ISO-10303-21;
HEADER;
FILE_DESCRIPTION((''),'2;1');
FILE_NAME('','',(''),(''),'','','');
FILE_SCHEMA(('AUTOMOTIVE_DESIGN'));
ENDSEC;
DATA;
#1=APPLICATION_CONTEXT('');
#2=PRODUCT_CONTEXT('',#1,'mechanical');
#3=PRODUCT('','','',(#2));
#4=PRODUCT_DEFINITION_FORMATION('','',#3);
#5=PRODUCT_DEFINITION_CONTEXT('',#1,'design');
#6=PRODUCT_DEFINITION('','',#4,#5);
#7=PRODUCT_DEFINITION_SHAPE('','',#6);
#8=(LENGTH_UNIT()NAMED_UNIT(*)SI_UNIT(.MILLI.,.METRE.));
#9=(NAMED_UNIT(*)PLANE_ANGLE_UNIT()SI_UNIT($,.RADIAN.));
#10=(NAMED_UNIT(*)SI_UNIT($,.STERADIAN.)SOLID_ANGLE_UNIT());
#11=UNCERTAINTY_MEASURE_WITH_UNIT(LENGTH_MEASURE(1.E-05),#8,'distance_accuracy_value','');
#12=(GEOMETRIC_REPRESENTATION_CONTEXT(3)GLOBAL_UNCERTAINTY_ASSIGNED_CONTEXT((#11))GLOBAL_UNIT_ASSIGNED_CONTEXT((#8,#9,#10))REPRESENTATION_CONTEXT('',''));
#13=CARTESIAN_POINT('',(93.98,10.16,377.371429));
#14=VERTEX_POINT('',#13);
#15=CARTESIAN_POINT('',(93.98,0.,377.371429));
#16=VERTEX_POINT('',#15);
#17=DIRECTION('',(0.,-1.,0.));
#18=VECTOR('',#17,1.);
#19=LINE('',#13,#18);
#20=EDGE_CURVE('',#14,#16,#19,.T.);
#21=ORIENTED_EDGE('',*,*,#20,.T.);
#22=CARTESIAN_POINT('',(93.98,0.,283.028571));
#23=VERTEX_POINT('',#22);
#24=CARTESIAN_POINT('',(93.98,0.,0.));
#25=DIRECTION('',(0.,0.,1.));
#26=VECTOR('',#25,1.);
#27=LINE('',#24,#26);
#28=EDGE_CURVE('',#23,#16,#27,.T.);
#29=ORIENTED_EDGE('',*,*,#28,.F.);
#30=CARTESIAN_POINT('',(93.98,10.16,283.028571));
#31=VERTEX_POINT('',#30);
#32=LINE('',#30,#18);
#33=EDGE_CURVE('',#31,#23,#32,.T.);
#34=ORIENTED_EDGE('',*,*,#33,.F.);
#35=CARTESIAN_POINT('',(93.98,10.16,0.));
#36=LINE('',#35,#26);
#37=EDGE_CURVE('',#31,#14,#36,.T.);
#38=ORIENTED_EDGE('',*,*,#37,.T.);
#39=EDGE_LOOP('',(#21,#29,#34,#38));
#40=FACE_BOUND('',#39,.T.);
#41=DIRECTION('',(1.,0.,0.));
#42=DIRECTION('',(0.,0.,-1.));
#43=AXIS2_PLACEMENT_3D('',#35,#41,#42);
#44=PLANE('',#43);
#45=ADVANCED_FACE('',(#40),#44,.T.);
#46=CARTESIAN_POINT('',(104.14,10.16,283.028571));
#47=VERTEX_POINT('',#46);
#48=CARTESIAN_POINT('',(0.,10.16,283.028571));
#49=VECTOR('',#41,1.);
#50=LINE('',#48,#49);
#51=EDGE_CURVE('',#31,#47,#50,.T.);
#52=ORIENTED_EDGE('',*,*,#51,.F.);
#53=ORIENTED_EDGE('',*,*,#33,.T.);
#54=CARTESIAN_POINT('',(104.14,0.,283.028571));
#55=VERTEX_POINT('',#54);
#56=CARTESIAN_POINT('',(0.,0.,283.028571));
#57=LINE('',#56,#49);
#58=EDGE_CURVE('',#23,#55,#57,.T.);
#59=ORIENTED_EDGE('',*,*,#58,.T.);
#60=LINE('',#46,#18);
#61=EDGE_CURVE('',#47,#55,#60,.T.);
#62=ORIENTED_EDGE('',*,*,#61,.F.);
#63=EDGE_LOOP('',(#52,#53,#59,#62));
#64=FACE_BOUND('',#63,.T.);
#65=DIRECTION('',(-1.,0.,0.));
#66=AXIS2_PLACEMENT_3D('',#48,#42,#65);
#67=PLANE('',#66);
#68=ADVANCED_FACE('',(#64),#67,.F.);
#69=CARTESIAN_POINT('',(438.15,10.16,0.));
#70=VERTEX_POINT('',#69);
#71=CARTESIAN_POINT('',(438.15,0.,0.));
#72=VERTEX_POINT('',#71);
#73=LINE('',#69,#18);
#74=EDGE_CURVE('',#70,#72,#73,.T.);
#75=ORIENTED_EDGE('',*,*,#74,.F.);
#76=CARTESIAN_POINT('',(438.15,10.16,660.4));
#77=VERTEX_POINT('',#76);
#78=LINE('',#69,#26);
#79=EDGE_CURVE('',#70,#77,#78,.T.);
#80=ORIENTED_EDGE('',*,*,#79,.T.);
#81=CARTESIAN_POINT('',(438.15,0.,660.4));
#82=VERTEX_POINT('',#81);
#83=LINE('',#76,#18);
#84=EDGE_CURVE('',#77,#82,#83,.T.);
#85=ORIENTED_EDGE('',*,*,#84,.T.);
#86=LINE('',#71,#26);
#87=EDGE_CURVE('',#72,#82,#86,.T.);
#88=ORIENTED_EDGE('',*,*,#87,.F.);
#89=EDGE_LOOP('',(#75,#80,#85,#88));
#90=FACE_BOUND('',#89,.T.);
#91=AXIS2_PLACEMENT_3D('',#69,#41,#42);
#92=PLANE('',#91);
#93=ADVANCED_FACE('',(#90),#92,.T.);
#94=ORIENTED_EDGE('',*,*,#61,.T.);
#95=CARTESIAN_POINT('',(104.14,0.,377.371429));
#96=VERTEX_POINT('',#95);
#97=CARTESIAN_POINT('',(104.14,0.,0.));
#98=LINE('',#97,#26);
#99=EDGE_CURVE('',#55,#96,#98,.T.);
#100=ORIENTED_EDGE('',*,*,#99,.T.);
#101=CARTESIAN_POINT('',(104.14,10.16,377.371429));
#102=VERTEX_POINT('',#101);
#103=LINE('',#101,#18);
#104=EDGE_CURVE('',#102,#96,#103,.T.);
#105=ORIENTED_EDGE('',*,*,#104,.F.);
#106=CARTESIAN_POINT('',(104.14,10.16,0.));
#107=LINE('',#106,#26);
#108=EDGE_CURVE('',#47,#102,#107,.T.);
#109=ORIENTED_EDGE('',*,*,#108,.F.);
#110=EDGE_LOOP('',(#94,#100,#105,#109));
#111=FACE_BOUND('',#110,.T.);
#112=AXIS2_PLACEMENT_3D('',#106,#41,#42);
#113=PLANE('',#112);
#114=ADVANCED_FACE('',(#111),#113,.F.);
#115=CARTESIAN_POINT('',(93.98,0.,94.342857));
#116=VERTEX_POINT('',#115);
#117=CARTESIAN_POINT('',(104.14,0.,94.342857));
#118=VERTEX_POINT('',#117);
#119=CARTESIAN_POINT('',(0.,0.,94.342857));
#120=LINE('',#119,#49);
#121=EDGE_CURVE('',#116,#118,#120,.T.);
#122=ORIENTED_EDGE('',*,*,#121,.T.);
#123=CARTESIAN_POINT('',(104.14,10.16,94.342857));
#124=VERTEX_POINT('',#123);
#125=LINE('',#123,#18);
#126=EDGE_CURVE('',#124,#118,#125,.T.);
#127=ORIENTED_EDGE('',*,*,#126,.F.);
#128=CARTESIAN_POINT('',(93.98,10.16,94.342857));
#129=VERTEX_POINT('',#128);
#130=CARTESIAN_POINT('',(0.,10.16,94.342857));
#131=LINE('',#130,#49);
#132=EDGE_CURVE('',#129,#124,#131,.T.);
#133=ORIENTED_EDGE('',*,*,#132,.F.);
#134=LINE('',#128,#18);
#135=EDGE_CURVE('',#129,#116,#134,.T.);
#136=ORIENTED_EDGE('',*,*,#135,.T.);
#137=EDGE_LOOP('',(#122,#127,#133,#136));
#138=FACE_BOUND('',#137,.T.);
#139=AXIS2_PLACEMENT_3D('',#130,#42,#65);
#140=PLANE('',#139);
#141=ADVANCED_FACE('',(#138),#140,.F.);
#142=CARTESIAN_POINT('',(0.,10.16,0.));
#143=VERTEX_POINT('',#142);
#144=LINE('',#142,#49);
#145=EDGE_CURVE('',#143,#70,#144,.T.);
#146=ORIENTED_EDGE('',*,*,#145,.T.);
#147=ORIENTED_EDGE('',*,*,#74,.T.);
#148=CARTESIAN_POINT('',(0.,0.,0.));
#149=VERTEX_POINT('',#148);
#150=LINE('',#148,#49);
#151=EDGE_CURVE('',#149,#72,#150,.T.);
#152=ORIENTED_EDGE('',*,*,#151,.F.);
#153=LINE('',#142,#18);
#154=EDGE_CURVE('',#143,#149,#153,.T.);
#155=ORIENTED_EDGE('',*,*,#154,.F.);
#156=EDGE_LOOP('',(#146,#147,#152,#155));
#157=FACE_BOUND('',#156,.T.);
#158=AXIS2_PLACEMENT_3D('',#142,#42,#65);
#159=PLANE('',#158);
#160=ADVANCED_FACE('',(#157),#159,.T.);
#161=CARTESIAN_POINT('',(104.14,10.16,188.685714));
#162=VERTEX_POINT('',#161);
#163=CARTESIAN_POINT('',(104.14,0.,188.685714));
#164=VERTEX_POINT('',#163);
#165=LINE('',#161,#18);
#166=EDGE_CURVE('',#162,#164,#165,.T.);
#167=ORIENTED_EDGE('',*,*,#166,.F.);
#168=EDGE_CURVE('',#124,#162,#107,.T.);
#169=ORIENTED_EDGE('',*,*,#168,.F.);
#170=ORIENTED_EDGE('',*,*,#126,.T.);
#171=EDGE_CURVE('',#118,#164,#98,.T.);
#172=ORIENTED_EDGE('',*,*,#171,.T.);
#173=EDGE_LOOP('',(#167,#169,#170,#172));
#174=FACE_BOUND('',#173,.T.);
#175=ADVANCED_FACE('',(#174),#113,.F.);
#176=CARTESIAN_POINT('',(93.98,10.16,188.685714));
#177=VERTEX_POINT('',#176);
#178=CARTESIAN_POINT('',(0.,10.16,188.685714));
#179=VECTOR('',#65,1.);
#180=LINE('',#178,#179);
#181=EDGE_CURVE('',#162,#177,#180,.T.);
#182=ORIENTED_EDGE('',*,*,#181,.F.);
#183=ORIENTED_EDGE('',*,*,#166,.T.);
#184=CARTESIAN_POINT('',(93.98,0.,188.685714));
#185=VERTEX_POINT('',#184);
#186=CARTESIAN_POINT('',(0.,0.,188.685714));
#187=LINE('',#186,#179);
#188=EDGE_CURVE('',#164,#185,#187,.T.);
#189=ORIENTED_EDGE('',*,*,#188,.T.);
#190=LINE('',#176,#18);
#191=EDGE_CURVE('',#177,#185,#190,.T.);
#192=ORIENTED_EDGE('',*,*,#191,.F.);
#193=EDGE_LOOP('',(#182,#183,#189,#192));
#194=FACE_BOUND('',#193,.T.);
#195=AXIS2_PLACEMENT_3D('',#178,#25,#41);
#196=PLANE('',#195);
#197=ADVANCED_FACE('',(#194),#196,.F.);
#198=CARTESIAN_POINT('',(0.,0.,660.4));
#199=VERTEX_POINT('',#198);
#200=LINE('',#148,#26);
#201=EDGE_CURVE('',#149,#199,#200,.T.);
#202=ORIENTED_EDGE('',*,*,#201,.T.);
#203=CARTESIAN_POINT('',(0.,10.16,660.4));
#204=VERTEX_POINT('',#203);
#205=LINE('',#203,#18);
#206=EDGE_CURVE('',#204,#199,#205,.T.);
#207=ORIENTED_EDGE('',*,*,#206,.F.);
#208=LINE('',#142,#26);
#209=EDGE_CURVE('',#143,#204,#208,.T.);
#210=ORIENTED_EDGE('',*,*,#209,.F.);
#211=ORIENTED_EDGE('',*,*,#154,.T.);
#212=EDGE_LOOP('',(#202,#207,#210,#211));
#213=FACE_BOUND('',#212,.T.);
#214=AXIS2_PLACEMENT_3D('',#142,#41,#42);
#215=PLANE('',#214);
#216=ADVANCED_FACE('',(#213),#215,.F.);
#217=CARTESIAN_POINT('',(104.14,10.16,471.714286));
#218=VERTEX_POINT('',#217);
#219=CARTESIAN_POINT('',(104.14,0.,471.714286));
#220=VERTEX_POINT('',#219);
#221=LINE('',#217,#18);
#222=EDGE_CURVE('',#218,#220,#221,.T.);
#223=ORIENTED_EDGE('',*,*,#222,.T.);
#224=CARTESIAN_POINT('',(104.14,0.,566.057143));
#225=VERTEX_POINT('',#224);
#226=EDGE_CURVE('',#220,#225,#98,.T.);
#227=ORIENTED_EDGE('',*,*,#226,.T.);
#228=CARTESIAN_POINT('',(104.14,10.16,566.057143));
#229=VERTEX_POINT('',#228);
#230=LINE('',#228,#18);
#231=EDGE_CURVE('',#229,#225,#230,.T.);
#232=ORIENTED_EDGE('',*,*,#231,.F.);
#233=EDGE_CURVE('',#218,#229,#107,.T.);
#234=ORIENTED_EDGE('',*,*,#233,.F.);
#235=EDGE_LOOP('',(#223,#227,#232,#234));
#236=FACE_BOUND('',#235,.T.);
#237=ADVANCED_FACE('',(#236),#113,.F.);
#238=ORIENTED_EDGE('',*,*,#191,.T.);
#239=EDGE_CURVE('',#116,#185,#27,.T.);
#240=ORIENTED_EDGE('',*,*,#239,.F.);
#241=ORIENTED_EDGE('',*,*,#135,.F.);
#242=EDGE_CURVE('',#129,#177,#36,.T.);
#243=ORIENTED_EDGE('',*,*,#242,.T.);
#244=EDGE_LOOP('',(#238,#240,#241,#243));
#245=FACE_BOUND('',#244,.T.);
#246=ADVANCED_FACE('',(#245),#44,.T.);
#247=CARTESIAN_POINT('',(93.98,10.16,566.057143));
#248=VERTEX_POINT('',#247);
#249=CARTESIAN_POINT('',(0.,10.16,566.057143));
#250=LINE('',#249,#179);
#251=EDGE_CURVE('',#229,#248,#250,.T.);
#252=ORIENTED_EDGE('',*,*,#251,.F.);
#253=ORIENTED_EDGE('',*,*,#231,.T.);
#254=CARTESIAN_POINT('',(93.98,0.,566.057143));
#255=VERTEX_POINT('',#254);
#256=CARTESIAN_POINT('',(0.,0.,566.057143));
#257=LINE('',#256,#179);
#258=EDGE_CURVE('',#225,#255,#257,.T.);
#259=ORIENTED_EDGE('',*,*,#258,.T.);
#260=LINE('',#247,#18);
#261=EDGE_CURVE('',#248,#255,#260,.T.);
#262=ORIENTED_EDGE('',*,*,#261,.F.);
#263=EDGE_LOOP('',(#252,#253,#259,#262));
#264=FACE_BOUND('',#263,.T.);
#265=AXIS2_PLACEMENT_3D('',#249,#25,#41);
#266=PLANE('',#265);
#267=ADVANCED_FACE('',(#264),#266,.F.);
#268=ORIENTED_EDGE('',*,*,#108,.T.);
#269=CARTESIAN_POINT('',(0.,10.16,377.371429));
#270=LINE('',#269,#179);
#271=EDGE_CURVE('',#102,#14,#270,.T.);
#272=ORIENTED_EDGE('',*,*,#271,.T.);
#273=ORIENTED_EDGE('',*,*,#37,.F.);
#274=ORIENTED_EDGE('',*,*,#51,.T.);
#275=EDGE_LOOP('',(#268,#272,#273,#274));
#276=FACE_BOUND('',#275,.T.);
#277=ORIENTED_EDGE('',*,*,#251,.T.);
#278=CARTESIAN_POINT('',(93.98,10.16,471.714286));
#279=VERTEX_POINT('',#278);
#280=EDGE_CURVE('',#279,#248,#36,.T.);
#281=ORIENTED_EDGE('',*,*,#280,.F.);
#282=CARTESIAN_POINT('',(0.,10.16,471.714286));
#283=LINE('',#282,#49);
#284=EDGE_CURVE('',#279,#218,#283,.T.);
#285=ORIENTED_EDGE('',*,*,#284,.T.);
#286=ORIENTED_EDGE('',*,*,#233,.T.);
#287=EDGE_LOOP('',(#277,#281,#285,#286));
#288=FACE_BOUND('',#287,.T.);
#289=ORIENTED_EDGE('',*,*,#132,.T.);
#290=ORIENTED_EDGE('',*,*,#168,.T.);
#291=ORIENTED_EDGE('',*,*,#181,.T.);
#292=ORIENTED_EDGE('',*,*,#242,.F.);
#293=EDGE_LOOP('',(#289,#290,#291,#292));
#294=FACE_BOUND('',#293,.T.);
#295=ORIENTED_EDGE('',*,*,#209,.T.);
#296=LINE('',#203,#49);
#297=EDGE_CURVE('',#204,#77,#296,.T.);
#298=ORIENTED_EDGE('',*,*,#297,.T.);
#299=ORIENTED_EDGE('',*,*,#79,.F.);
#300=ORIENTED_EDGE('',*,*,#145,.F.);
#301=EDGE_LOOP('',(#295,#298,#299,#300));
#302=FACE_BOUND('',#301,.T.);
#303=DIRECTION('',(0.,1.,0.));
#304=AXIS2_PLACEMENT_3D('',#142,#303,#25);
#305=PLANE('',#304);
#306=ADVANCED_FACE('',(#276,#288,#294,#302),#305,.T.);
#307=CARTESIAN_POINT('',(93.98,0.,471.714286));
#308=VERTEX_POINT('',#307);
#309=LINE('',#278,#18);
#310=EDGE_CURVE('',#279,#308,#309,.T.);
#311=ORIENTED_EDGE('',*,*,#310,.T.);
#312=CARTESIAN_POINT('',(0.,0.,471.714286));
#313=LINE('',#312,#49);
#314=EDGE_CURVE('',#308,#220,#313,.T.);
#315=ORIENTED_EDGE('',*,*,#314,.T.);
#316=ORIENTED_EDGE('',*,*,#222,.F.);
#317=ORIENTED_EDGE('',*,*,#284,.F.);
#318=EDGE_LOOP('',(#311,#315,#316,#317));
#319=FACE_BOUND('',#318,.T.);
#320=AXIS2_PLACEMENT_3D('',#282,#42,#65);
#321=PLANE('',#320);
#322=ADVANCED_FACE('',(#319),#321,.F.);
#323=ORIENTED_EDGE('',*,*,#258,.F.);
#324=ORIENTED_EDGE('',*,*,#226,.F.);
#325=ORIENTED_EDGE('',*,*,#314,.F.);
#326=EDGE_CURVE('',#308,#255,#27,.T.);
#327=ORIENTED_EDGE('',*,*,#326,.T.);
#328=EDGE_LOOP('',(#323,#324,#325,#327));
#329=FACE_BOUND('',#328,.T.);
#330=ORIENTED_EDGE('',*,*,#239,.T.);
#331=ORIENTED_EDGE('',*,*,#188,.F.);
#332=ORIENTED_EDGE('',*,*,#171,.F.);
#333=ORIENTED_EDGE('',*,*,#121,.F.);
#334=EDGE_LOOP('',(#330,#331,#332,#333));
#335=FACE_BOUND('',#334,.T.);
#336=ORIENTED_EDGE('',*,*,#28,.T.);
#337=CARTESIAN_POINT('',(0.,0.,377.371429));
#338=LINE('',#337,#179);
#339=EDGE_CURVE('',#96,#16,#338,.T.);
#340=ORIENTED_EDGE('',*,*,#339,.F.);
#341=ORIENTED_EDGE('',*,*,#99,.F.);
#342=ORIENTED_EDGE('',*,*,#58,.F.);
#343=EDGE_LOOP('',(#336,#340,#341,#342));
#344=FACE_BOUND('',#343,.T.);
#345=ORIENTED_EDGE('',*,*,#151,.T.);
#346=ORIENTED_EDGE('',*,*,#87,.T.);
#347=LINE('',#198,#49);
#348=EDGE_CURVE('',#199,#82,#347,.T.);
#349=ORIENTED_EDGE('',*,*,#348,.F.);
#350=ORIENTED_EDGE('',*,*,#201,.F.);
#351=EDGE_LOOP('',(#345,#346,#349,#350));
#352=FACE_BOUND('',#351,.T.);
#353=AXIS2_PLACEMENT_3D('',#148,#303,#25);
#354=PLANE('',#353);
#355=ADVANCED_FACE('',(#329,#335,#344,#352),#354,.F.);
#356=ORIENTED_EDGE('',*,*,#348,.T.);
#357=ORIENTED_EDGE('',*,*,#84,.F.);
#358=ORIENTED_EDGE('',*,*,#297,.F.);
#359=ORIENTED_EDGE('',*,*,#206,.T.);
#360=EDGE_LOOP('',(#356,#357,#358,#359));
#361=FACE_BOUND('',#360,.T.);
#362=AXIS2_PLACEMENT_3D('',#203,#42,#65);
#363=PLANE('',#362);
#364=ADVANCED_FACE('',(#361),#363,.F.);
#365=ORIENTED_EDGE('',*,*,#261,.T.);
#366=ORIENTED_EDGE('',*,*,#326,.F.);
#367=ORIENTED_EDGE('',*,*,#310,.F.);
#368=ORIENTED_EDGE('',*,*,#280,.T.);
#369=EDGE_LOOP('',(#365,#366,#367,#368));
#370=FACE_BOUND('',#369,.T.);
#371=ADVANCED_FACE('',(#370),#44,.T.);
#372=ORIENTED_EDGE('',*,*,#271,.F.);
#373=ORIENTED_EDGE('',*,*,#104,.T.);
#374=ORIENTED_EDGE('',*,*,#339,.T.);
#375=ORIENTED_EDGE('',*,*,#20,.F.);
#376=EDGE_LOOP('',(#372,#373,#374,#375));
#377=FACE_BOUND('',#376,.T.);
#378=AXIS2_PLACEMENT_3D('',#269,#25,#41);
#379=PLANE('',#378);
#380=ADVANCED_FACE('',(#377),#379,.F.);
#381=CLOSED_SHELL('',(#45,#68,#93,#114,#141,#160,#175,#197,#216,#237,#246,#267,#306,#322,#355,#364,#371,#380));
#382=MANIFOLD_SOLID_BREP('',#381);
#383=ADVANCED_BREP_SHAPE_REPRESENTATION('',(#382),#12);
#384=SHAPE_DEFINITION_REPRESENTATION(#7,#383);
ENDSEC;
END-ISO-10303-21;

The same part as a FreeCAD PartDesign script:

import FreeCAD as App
import Part
import Sketcher

V = App.Vector
Q = App.Units.Quantity

doc = App.newDocument("Part")
body = doc.addObject("PartDesign::Body", "Body")

# Sketch on XZ plane
sketch1 = body.newObject("Sketcher::SketchObject", "Sketch")
sketch1.AttachmentSupport = (doc.getObject("XZ_Plane"), [""])
sketch1.MapMode = "FlatFace"
sketch1.addGeometry([
    Part.LineSegment(V(94, 0, 0), V(0, 0, 0)),  # 0
    Part.LineSegment(V(0, 0, 0), V(0, 660, 0)),  # 1
    Part.LineSegment(V(0, 660, 0), V(94, 660, 0)),  # 2
    Part.LineSegment(V(94, 660, 0), V(104, 660, 0)),  # 3
    Part.LineSegment(V(104, 660, 0), V(438, 660, 0)),  # 4
    Part.LineSegment(V(438, 660, 0), V(438, 0, 0)),  # 5
    Part.LineSegment(V(438, 0, 0), V(104, 0, 0)),  # 6
    Part.LineSegment(V(104, 0, 0), V(94, 0, 0)),  # 7
    Part.LineSegment(V(94, 566, 0), V(94, 472, 0)),  # 8
    Part.LineSegment(V(94, 472, 0), V(104, 472, 0)),  # 9
    Part.LineSegment(V(104, 472, 0), V(104, 566, 0)),  # 10
    Part.LineSegment(V(104, 566, 0), V(94, 566, 0)),  # 11
    Part.LineSegment(V(94, 377, 0), V(94, 283, 0)),  # 12
    Part.LineSegment(V(94, 283, 0), V(104, 283, 0)),  # 13
    Part.LineSegment(V(104, 283, 0), V(104, 377, 0)),  # 14
    Part.LineSegment(V(104, 377, 0), V(94, 377, 0)),  # 15
    Part.LineSegment(V(94, 189, 0), V(94, 94, 0)),  # 16
    Part.LineSegment(V(94, 94, 0), V(104, 94, 0)),  # 17
    Part.LineSegment(V(104, 94, 0), V(104, 189, 0)),  # 18
    Part.LineSegment(V(104, 189, 0), V(94, 189, 0)),  # 19
], False)
sketch1.addConstraint([
    Sketcher.Constraint("Coincident", 0, 2, 1, 1),
    Sketcher.Constraint("Coincident", 1, 2, 2, 1),
    Sketcher.Constraint("Coincident", 2, 2, 3, 1),
    Sketcher.Constraint("Coincident", 3, 2, 4, 1),
    Sketcher.Constraint("Coincident", 4, 2, 5, 1),
    Sketcher.Constraint("Coincident", 5, 2, 6, 1),
    Sketcher.Constraint("Coincident", 6, 2, 7, 1),
    Sketcher.Constraint("Coincident", 7, 2, 0, 1),
    Sketcher.Constraint("Coincident", 8, 2, 9, 1),
    Sketcher.Constraint("Coincident", 9, 2, 10, 1),
    Sketcher.Constraint("Coincident", 10, 2, 11, 1),
    Sketcher.Constraint("Coincident", 11, 2, 8, 1),
    Sketcher.Constraint("Coincident", 12, 2, 13, 1),
    Sketcher.Constraint("Coincident", 13, 2, 14, 1),
    Sketcher.Constraint("Coincident", 14, 2, 15, 1),
    Sketcher.Constraint("Coincident", 15, 2, 12, 1),
    Sketcher.Constraint("Coincident", 16, 2, 17, 1),
    Sketcher.Constraint("Coincident", 17, 2, 18, 1),
    Sketcher.Constraint("Coincident", 18, 2, 19, 1),
    Sketcher.Constraint("Coincident", 19, 2, 16, 1),
    Sketcher.Constraint("Horizontal", 0),
    Sketcher.Constraint("Vertical", 1),
    Sketcher.Constraint("Horizontal", 2),
    Sketcher.Constraint("Horizontal", 3),
    Sketcher.Constraint("Horizontal", 4),
    Sketcher.Constraint("Vertical", 5),
    Sketcher.Constraint("Horizontal", 6),
    Sketcher.Constraint("Horizontal", 7),
    Sketcher.Constraint("Vertical", 8),
    Sketcher.Constraint("Horizontal", 9),
    Sketcher.Constraint("Vertical", 10),
    Sketcher.Constraint("Horizontal", 11),
    Sketcher.Constraint("Vertical", 12),
    Sketcher.Constraint("Horizontal", 13),
    Sketcher.Constraint("Vertical", 14),
    Sketcher.Constraint("Horizontal", 15),
    Sketcher.Constraint("Vertical", 16),
    Sketcher.Constraint("Horizontal", 17),
    Sketcher.Constraint("Vertical", 18),
    Sketcher.Constraint("Horizontal", 19),
    Sketcher.Constraint("Coincident", 0, 2, -1, 1),
    Sketcher.Constraint("Vertical", 3, 2, 6, 2),
    Sketcher.Constraint("Vertical", 2, 2, 7, 2),
    Sketcher.Constraint("Vertical", 7, 2, 8, 2),
    Sketcher.Constraint("Vertical", 6, 2, 9, 2),
    Sketcher.Constraint("Vertical", 11, 2, 12, 2),
    Sketcher.Constraint("Vertical", 10, 2, 13, 2),
    Sketcher.Constraint("Vertical", 15, 2, 16, 2),
    Sketcher.Constraint("Vertical", 14, 2, 17, 2),
    Sketcher.Constraint("Equal", 10, 12),
    Sketcher.Constraint("Equal", 14, 16),
    Sketcher.Constraint("DistanceY", 1, 1, 1, 2, Q("26 in")),
    Sketcher.Constraint("DistanceX", 0, 2, 0, 1, Q("3.7 in")),
    Sketcher.Constraint("DistanceX", 3, 1, 3, 2, Q("0.4 in")),
    Sketcher.Constraint("DistanceX", 4, 1, 4, 2, Q("13.15 in")),
    Sketcher.Constraint("DistanceY", 8, 2, 8, 1, 94.342857),
    Sketcher.Constraint("DistanceY", -1, 1, 12, 2, 283.028571),
    Sketcher.Constraint("DistanceY", 12, 2, 11, 2, 283.028571),
    Sketcher.Constraint("DistanceY", -1, 1, 16, 2, 94.342857),
])
pad1 = body.newObject("PartDesign::Pad", "Pad")
pad1.Profile = sketch1
pad1.Length = Q("0.4 in")
pad1.Reversed = True

doc.recompute()
